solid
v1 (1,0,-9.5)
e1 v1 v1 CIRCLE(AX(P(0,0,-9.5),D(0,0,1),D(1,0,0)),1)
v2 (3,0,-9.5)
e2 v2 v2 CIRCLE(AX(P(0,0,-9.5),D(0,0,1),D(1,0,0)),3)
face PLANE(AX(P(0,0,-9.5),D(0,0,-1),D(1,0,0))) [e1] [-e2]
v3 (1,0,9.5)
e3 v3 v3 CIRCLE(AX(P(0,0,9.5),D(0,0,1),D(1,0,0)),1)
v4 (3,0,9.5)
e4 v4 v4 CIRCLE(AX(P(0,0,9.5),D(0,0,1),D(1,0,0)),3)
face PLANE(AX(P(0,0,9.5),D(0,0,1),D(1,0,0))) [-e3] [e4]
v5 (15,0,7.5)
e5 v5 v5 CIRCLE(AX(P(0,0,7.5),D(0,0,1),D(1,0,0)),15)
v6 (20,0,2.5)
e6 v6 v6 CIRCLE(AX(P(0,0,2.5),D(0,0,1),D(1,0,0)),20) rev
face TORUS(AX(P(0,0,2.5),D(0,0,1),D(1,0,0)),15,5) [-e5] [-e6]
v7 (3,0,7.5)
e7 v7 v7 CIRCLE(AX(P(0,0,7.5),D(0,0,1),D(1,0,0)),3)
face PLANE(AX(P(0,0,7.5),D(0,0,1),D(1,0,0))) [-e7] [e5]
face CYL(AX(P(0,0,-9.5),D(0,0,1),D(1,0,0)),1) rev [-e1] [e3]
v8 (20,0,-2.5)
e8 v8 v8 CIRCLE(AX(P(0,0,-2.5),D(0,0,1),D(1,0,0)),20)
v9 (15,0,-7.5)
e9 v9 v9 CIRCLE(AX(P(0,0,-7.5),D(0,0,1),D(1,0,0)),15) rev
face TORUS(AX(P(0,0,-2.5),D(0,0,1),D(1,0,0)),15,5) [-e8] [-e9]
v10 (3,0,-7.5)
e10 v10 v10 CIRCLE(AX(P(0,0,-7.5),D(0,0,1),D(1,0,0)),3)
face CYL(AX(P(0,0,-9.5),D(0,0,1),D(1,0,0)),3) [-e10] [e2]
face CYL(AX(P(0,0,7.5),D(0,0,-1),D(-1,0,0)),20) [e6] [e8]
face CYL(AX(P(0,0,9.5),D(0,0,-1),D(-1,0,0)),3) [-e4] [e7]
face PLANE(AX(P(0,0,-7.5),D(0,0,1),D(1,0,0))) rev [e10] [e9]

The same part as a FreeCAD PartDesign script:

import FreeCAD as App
import Part
import Sketcher
from FreeCAD import Vector
Q = App.Units.Quantity


def edges_at(feature, points):
    """Names of the edges that pass closest to the given points."""
    edges = feature.Shape.Edges
    near = lambda p: min(range(len(edges)), key=lambda i: edges[i].distToShape(Part.Vertex(*p))[0])
    return sorted({f"Edge{near(p) + 1}" for p in points})

doc = App.newDocument("Part")
body = doc.addObject("PartDesign::Body", "Body")

# Sketch on XY plane
sketch1 = doc.addObject("Sketcher::SketchObject", "Sketch")
body.addObject(sketch1)
sketch1.AttachmentSupport = (doc.XY_Plane, [""])
sketch1.MapMode = "FlatFace"
sketch1.addGeometry(Part.Circle(Vector(0, 0, 0), Vector(0, 0, 1), 20), False)
sketch1.addConstraint([
    Sketcher.Constraint("Coincident", 0, 3, -1, 1),
    Sketcher.Constraint("Diameter", 0, Q("40 mm")),
])
pad1 = doc.addObject("PartDesign::Pad", "Pad")
body.addObject(pad1)
pad1.Profile = sketch1
pad1.Length = 15
pad1.Midplane = True
doc.recompute()

fillet = doc.addObject("PartDesign::Fillet", "Fillet")
body.addObject(fillet)
fillet.Base = (pad1, edges_at(pad1, [(-20, 0, -7.5), (-20, 0, 7.5)]))
fillet.Radius = 5

# Sketch on XY plane
sketch2 = doc.addObject("Sketcher::SketchObject", "Sketch001")
body.addObject(sketch2)
sketch2.AttachmentSupport = (doc.XY_Plane, [""])
sketch2.MapMode = "FlatFace"
sketch2.AttachmentOffset = App.Placement(Vector(0, 0, 7.5), App.Rotation())
sketch2.addGeometry(Part.Circle(Vector(0, 0, 0), Vector(0, 0, 1), 3), False)
sketch2.addConstraint([
    Sketcher.Constraint("Coincident", 0, 3, -1, 1),
    Sketcher.Constraint("Diameter", 0, Q("6 mm")),
])
pad2 = doc.addObject("PartDesign::Pad", "Pad001")
body.addObject(pad2)
pad2.Profile = sketch2
pad2.Length = 2
doc.recompute()

mirrored = doc.addObject("PartDesign::Mirrored", "Mirrored")
body.addObject(mirrored)
mirrored.Originals = [pad2]
mirrored.MirrorPlane = (doc.XY_Plane, [""])
body.Tip = mirrored

# Sketch on XY plane
sketch3 = doc.addObject("Sketcher::SketchObject", "Sketch002")
body.addObject(sketch3)
sketch3.AttachmentSupport = (doc.XY_Plane, [""])
sketch3.MapMode = "FlatFace"
sketch3.AttachmentOffset = App.Placement(Vector(0, 0, 9.5), App.Rotation())
sketch3.addGeometry(Part.Circle(Vector(0, 0, 0), Vector(0, 0, 1), 1), False)
sketch3.addConstraint([
    Sketcher.Constraint("Coincident", 0, 3, -1, 1),
    Sketcher.Constraint("Diameter", 0, Q("2 mm")),
])
pocket1 = doc.addObject("PartDesign::Pocket", "Pocket")
body.addObject(pocket1)
pocket1.Profile = sketch3
pocket1.Type = "ThroughAll"

doc.recompute()
